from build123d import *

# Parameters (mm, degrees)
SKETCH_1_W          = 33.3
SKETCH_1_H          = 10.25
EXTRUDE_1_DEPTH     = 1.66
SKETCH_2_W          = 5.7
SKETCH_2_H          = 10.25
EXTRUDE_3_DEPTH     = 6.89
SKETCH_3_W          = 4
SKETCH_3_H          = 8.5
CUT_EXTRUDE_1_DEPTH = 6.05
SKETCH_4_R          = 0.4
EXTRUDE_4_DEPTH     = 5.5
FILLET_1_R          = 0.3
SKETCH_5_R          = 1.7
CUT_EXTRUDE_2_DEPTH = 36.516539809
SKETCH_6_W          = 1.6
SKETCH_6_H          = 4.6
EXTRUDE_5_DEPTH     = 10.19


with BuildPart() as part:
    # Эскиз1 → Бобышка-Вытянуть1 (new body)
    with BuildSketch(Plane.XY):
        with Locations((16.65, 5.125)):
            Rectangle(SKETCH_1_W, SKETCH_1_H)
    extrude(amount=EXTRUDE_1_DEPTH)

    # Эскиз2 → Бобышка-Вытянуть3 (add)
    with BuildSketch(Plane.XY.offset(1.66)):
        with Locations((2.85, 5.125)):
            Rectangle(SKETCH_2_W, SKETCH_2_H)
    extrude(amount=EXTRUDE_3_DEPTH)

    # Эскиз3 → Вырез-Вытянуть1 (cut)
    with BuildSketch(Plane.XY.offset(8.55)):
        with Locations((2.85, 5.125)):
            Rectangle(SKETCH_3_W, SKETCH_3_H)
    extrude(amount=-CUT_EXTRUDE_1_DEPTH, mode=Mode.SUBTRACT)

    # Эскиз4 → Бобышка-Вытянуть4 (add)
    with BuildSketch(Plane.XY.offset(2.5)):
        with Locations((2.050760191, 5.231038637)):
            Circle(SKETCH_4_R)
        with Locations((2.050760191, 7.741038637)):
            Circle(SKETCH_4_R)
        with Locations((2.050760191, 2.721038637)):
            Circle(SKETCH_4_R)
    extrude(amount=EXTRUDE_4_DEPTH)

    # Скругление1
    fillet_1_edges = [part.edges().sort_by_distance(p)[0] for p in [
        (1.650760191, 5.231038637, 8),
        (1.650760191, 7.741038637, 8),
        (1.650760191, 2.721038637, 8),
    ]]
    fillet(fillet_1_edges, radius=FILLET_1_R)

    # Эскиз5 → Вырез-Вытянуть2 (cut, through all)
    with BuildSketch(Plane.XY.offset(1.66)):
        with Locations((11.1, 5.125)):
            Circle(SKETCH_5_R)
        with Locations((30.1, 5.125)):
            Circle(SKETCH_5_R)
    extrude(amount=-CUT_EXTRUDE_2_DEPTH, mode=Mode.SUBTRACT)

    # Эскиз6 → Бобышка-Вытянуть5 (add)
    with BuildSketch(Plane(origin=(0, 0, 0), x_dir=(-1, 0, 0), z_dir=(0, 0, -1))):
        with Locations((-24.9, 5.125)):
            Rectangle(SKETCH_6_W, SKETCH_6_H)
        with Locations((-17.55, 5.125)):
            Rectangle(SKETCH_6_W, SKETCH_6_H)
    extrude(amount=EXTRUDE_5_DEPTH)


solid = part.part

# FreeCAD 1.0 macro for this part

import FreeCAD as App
import Part
import Sketcher
Q = App.Units.Quantity


def edges_at(feature, points):
    """Names of the edges that pass closest to the given points."""
    edges = feature.Shape.Edges
    near = lambda p: min(range(len(edges)), key=lambda i: edges[i].distToShape(Part.Vertex(*p))[0])
    return sorted({f"Edge{near(p) + 1}" for p in points})

doc = App.newDocument("Part")
params = doc.addObject("Spreadsheet::Sheet", "Params")
for row, (alias, value) in enumerate([
    ("sketch1_width", "33.3 mm"),
    ("sketch1_height", "10.25 mm"),
    ("pad1_length", "1.66 mm"),
    ("sketch2_width", "5.7 mm"),
    ("sketch2_height", "10.25 mm"),
    ("pad2_length", "6.89 mm"),
    ("sketch3_width", "4 mm"),
    ("sketch3_height", "8.5 mm"),
    ("pocket1_length", "6.05 mm"),
    ("sketch4_diameter", "0.8 mm"),
    ("pad3_length", "5.5 mm"),
    ("fillet_radius", "0.3 mm"),
    ("sketch5_diameter", "3.4 mm"),
    ("sketch6_width", "1.6 mm"),
    ("sketch6_height", "4.6 mm"),
    ("pad4_length", "10.19 mm"),
], start=1):
    params.set(f"A{row}", alias)
    params.set(f"B{row}", "=" + value)
    params.setAlias(f"B{row}", alias)

body = doc.addObject("PartDesign::Body", "Body")

# Sketch on XY plane
sketch1 = body.newObject("Sketcher::SketchObject", "Sketch")
sketch1.AttachmentSupport = (doc.getObject("XY_Plane"), [""])
sketch1.MapMode = "FlatFace"
sketch1.addGeometry([
    Part.LineSegment(App.Vector(0, 10, 0), App.Vector(0, 0, 0)),
    Part.LineSegment(App.Vector(0, 0, 0), App.Vector(33, 0, 0)),
    Part.LineSegment(App.Vector(33, 0, 0), App.Vector(33, 10, 0)),
    Part.LineSegment(App.Vector(33, 10, 0), App.Vector(0, 10, 0)),
], False)
sketch1.addConstraint([
    Sketcher.Constraint("Coincident", 0, 2, 1, 1),
    Sketcher.Constraint("Coincident", 1, 2, 2, 1),
    Sketcher.Constraint("Coincident", 2, 2, 3, 1),
    Sketcher.Constraint("Coincident", 3, 2, 0, 1),
    Sketcher.Constraint("Vertical", 0),
    Sketcher.Constraint("Horizontal", 1),
    Sketcher.Constraint("Vertical", 2),
    Sketcher.Constraint("Horizontal", 3),
    Sketcher.Constraint("Coincident", 0, 2, -1, 1),
    Sketcher.Constraint("DistanceX", 1, 1, 1, 2, Q("33.3 mm")),
    Sketcher.Constraint("DistanceY", 0, 2, 0, 1, Q("10.25 mm")),
])
sketch1.setExpression("Constraints[9]", "Params.sketch1_width")
sketch1.setExpression("Constraints[10]", "Params.sketch1_height")
pad1 = body.newObject("PartDesign::Pad", "Pad")
pad1.Profile = sketch1
pad1.setExpression("Length", "Params.pad1_length")

# Sketch on XY plane
sketch2 = body.newObject("Sketcher::SketchObject", "Sketch001")
sketch2.AttachmentSupport = (doc.getObject("XY_Plane"), [""])
sketch2.MapMode = "FlatFace"
sketch2.AttachmentOffset = App.Placement(App.Vector(0, 0, 1.66), App.Rotation())
sketch2.addGeometry([
    Part.LineSegment(App.Vector(0, 10, 0), App.Vector(0, 0, 0)),
    Part.LineSegment(App.Vector(0, 0, 0), App.Vector(6, 0, 0)),
    Part.LineSegment(App.Vector(6, 0, 0), App.Vector(6, 10, 0)),
    Part.LineSegment(App.Vector(6, 10, 0), App.Vector(0, 10, 0)),
], False)
sketch2.addConstraint([
    Sketcher.Constraint("Coincident", 0, 2, 1, 1),
    Sketcher.Constraint("Coincident", 1, 2, 2, 1),
    Sketcher.Constraint("Coincident", 2, 2, 3, 1),
    Sketcher.Constraint("Coincident", 3, 2, 0, 1),
    Sketcher.Constraint("Vertical", 0),
    Sketcher.Constraint("Horizontal", 1),
    Sketcher.Constraint("Vertical", 2),
    Sketcher.Constraint("Horizontal", 3),
    Sketcher.Constraint("Coincident", 0, 2, -1, 1),
    Sketcher.Constraint("DistanceX", 1, 1, 1, 2, Q("5.7 mm")),
    Sketcher.Constraint("DistanceY", 0, 2, 0, 1, Q("10.25 mm")),
])
sketch2.setExpression("Constraints[9]", "Params.sketch2_width")
sketch2.setExpression("Constraints[10]", "Params.sketch2_height")
pad2 = body.newObject("PartDesign::Pad", "Pad001")
pad2.Profile = sketch2
pad2.setExpression("Length", "Params.pad2_length")

# Sketch on XY plane
sketch3 = body.newObject("Sketcher::SketchObject", "Sketch002")
sketch3.AttachmentSupport = (doc.getObject("XY_Plane"), [""])
sketch3.MapMode = "FlatFace"
sketch3.AttachmentOffset = App.Placement(App.Vector(0, 0, 8.55), App.Rotation())
sketch3.addGeometry([
    Part.LineSegment(App.Vector(0.8, 9.4, 0), App.Vector(0.8, 0.9, 0)),
    Part.LineSegment(App.Vector(0.8, 0.9, 0), App.Vector(4.8, 0.9, 0)),
    Part.LineSegment(App.Vector(4.8, 0.9, 0), App.Vector(4.8, 9.4, 0)),
    Part.LineSegment(App.Vector(4.8, 9.4, 0), App.Vector(0.8, 9.4, 0)),
], False)
sketch3.addConstraint([
    Sketcher.Constraint("Coincident", 0, 2, 1, 1),
    Sketcher.Constraint("Coincident", 1, 2, 2, 1),
    Sketcher.Constraint("Coincident", 2, 2, 3, 1),
    Sketcher.Constraint("Coincident", 3, 2, 0, 1),
    Sketcher.Constraint("Vertical", 0),
    Sketcher.Constraint("Horizontal", 1),
    Sketcher.Constraint("Vertical", 2),
    Sketcher.Constraint("Horizontal", 3),
    Sketcher.Constraint("DistanceX", 1, 1, 1, 2, Q("4 mm")),
    Sketcher.Constraint("DistanceY", 0, 2, 0, 1, Q("8.5 mm")),
    Sketcher.Constraint("DistanceX", -1, 1, 0, 2, Q("0.85 mm")),
    Sketcher.Constraint("DistanceY", -1, 1, 0, 2, Q("0.875 mm")),
])
sketch3.setExpression("Constraints[8]", "Params.sketch3_width")
sketch3.setExpression("Constraints[9]", "Params.sketch3_height")
pocket1 = body.newObject("PartDesign::Pocket", "Pocket")
pocket1.Profile = sketch3
pocket1.setExpression("Length", "Params.pocket1_length")

# Sketch on XY plane
sketch4 = body.newObject("Sketcher::SketchObject", "Sketch003")
sketch4.AttachmentSupport = (doc.getObject("XY_Plane"), [""])
sketch4.MapMode = "FlatFace"
sketch4.AttachmentOffset = App.Placement(App.Vector(0, 0, 2.5), App.Rotation())
sketch4.addGeometry([
    Part.Circle(App.Vector(2.05, 5.23, 0), App.Vector(0, 0, 1), 0.4),
    Part.Circle(App.Vector(2.05, 7.74, 0), App.Vector(0, 0, 1), 0.4),
    Part.Circle(App.Vector(2.05, 2.72, 0), App.Vector(0, 0, 1), 0.4),
], False)
sketch4.addConstraint([
    Sketcher.Constraint("Equal", 0, 1),
    Sketcher.Constraint("Equal", 1, 2),
    Sketcher.Constraint("Vertical", 0, 3, 1, 3),
    Sketcher.Constraint("Vertical", 1, 3, 2, 3),
    Sketcher.Constraint("Diameter", 0, Q("0.8 mm")),
    Sketcher.Constraint("DistanceY", 0, 3, 1, 3, Q("2.51 mm")),
    Sketcher.Constraint("DistanceY", 2, 3, 0, 3, Q("2.51 mm")),
    Sketcher.Constraint("DistanceX", -1, 1, 0, 3, Q("2.05076 mm")),
    Sketcher.Constraint("DistanceY", -1, 1, 0, 3, Q("5.231039 mm")),
])
sketch4.setExpression("Constraints[4]", "Params.sketch4_diameter")
pad3 = body.newObject("PartDesign::Pad", "Pad002")
pad3.Profile = sketch4
pad3.setExpression("Length", "Params.pad3_length")
doc.recompute()

fillet = body.newObject("PartDesign::Fillet", "Fillet")
fillet.Base = (pad3, edges_at(pad3, [(1.651, 5.231, 8), (1.651, 7.741, 8), (1.651, 2.721, 8)]))
fillet.setExpression("Radius", "Params.fillet_radius")

# Sketch on XY plane
sketch5 = body.newObject("Sketcher::SketchObject", "Sketch004")
sketch5.AttachmentSupport = (doc.getObject("XY_Plane"), [""])
sketch5.MapMode = "FlatFace"
sketch5.AttachmentOffset = App.Placement(App.Vector(0, 0, 1.66), App.Rotation())
sketch5.addGeometry([
    Part.Circle(App.Vector(11.1, 5.1, 0), App.Vector(0, 0, 1), 1.7),
    Part.Circle(App.Vector(30.1, 5.1, 0), App.Vector(0, 0, 1), 1.7),
], False)
sketch5.addConstraint([
    Sketcher.Constraint("Equal", 0, 1),
    Sketcher.Constraint("Horizontal", 0, 3, 1, 3),
    Sketcher.Constraint("Diameter", 0, Q("3.4 mm")),
    Sketcher.Constraint("DistanceX", 0, 3, 1, 3, Q("19 mm")),
    Sketcher.Constraint("DistanceX", -1, 1, 0, 3, Q("11.1 mm")),
    Sketcher.Constraint("DistanceY", -1, 1, 0, 3, Q("5.125 mm")),
])
sketch5.setExpression("Constraints[2]", "Params.sketch5_diameter")
pocket2 = body.newObject("PartDesign::Pocket", "Pocket001")
pocket2.Profile = sketch5
pocket2.Type = "ThroughAll"

# Sketch on XY plane
sketch6 = body.newObject("Sketcher::SketchObject", "Sketch005")
sketch6.AttachmentSupport = (doc.getObject("XY_Plane"), [""])
sketch6.MapMode = "FlatFace"
sketch6.addGeometry([
    Part.LineSegment(App.Vector(25.7, 7.4, 0), App.Vector(25.7, 2.8, 0)),  # 0
    Part.LineSegment(App.Vector(25.7, 2.8, 0), App.Vector(24.1, 2.8, 0)),  # 1
    Part.LineSegment(App.Vector(24.1, 2.8, 0), App.Vector(24.1, 7.4, 0)),  # 2
    Part.LineSegment(App.Vector(24.1, 7.4, 0), App.Vector(25.7, 7.4, 0)),  # 3
    Part.LineSegment(App.Vector(18.4, 7.4, 0), App.Vector(18.4, 2.8, 0)),  # 4
    Part.LineSegment(App.Vector(18.4, 2.8, 0), App.Vector(16.8, 2.8, 0)),  # 5
    Part.LineSegment(App.Vector(16.8, 2.8, 0), App.Vector(16.8, 7.4, 0)),  # 6
    Part.LineSegment(App.Vector(16.8, 7.4, 0), App.Vector(18.4, 7.4, 0)),  # 7
], False)
sketch6.addConstraint([
    Sketcher.Constraint("Coincident", 0, 2, 1, 1),
    Sketcher.Constraint("Coincident", 1, 2, 2, 1),
    Sketcher.Constraint("Coincident", 2, 2, 3, 1),
    Sketcher.Constraint("Coincident", 3, 2, 0, 1),
    Sketcher.Constraint("Coincident", 4, 2, 5, 1),
    Sketcher.Constraint("Coincident", 5, 2, 6, 1),
    Sketcher.Constraint("Coincident", 6, 2, 7, 1),
    Sketcher.Constraint("Coincident", 7, 2, 4, 1),
    Sketcher.Constraint("Vertical", 0),
    Sketcher.Constraint("Horizontal", 1),
    Sketcher.Constraint("Vertical", 2),
    Sketcher.Constraint("Horizontal", 3),
    Sketcher.Constraint("Vertical", 4),
    Sketcher.Constraint("Horizontal", 5),
    Sketcher.Constraint("Vertical", 6),
    Sketcher.Constraint("Horizontal", 7),
    Sketcher.Constraint("Horizontal", 1, 2, 4, 2),
    Sketcher.Constraint("Horizontal", 3, 2, 6, 2),
    Sketcher.Constraint("Equal", 3, 5),
    Sketcher.Constraint("DistanceX", 1, 2, 1, 1, Q("1.6 mm")),
    Sketcher.Constraint("DistanceY", 0, 2, 0, 1, Q("4.6 mm")),
    Sketcher.Constraint("DistanceX", -1, 1, 0, 2, Q("25.7 mm")),
    Sketcher.Constraint("DistanceX", -1, 1, 4, 2, Q("18.35 mm")),
    Sketcher.Constraint("DistanceY", -1, 1, 0, 2, Q("2.825 mm")),
])
sketch6.setExpression("Constraints[19]", "Params.sketch6_width")
sketch6.setExpression("Constraints[20]", "Params.sketch6_height")
pad4 = body.newObject("PartDesign::Pad", "Pad003")
pad4.Profile = sketch6
pad4.setExpression("Length", "Params.pad4_length")
pad4.Reversed = True

doc.recompute()
